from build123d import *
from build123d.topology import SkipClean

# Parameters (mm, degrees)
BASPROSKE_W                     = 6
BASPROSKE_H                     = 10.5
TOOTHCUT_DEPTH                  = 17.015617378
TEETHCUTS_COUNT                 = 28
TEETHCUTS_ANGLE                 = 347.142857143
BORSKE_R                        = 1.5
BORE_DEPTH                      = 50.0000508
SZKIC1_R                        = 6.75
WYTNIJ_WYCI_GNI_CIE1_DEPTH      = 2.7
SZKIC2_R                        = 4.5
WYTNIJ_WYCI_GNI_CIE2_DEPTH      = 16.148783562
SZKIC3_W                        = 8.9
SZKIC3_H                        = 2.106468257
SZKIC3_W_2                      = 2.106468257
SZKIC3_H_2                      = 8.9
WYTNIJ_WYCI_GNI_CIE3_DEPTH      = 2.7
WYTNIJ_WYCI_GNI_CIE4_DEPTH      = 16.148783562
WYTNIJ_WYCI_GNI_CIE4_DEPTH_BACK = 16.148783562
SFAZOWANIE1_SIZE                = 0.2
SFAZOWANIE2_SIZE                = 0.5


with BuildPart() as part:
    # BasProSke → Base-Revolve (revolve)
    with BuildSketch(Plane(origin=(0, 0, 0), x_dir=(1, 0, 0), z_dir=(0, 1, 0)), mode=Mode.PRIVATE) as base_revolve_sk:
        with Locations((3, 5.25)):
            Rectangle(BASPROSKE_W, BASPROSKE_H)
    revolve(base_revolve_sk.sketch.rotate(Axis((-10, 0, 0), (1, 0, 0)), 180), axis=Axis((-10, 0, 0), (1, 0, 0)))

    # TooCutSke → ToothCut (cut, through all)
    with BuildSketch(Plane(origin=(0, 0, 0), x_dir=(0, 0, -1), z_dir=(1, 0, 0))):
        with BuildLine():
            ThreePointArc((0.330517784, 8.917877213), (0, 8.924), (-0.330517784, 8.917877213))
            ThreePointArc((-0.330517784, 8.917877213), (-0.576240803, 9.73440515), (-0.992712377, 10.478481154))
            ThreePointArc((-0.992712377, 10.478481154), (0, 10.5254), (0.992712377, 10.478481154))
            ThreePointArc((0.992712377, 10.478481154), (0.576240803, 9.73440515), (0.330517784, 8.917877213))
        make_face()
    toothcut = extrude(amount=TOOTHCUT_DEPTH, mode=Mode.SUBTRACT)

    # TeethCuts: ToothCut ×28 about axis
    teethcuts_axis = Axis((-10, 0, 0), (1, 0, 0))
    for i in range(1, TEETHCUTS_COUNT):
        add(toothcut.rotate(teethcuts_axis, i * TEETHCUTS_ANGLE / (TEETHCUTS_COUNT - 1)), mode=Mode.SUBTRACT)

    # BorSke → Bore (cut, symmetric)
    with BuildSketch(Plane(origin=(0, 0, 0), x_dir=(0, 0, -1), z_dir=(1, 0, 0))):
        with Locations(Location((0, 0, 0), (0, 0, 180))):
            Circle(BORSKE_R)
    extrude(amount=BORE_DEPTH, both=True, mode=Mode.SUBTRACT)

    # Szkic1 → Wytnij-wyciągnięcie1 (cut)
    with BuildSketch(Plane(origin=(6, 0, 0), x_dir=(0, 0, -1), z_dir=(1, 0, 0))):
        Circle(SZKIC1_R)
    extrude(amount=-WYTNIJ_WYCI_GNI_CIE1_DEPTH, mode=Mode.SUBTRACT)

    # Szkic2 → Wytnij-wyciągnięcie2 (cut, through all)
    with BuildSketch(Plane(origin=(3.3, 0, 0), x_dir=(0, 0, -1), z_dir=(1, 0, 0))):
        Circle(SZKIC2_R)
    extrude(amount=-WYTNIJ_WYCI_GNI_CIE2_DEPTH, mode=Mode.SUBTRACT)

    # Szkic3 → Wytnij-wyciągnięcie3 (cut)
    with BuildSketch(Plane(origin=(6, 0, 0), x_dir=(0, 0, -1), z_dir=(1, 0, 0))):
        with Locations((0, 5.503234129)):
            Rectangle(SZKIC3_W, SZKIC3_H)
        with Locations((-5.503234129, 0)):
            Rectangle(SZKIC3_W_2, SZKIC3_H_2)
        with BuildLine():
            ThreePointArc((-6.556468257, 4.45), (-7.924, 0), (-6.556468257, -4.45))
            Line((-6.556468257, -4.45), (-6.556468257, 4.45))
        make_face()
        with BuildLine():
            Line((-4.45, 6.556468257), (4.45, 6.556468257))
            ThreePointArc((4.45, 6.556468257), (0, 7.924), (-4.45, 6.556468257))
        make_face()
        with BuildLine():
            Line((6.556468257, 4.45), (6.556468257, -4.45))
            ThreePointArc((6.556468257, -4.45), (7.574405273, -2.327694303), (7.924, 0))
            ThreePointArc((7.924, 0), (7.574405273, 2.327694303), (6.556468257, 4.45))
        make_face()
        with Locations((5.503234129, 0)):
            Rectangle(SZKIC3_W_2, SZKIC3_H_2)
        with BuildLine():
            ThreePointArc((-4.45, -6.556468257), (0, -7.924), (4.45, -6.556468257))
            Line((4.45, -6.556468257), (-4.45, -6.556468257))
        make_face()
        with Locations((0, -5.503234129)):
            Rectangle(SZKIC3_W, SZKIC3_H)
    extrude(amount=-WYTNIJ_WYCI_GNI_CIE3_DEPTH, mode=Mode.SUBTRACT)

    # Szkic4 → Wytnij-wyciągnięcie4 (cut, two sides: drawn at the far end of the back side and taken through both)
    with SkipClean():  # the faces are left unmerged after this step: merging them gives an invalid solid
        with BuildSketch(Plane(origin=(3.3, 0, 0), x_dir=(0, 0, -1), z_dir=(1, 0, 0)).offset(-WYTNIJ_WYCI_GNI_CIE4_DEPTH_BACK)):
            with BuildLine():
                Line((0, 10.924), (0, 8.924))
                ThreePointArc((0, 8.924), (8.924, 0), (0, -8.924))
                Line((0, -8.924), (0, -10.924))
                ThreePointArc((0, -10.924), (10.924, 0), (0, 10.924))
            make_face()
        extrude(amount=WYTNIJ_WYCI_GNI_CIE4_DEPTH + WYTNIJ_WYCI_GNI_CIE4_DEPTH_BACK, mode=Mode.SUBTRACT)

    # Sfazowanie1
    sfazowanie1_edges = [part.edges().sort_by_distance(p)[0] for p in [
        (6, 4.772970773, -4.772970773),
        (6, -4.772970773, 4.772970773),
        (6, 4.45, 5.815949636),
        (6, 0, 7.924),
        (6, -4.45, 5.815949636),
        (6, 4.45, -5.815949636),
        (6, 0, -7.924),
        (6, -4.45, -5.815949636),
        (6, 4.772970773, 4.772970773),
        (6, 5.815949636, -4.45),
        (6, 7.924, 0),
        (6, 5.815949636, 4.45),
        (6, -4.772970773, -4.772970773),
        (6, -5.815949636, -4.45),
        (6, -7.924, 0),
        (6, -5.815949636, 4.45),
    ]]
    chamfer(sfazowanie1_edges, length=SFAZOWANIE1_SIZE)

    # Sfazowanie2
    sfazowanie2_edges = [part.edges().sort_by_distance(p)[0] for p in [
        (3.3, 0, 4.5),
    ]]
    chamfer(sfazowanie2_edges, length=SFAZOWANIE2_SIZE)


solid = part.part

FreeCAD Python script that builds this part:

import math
import FreeCAD as App
import Part
import Sketcher


def edges_at(feature, points):
    """Names of the edges that pass closest to the given points."""
    edges = feature.Shape.Edges
    near = lambda p: min(range(len(edges)), key=lambda i: edges[i].distToShape(Part.Vertex(*p))[0])
    return sorted({f"Edge{near(p) + 1}" for p in points})

doc = App.newDocument("Part")
params = doc.addObject("Spreadsheet::Sheet", "Params")
for row, (alias, value) in enumerate([
    ("sketch1_width", "6 mm"),
    ("sketch1_height", "10.5 mm"),
    ("revolution_angle", "360 deg"),
    ("sketch2_radius", "3.92 mm"),
    ("sketch3_diameter", "3 mm"),
    ("pocket2_length", "100.000102 mm"),
    ("sketch4_diameter", "13.5 mm"),
    ("pocket3_length", "2.7 mm"),
    ("sketch5_diameter", "9 mm"),
    ("sketch6_width", "8.9 mm"),
    ("pocket5_length", "2.7 mm"),
    ("sketch7_width", "2 mm"),
    ("chamfer_size", "0.2 mm"),
    ("chamfer2_size", "0.5 mm"),
], start=1):
    params.set(f"A{row}", alias)
    params.set(f"B{row}", "=" + value)
    params.setAlias(f"B{row}", alias)

body = doc.addObject("PartDesign::Body", "Body")

sketch1 = doc.addObject("Sketcher::SketchObject", "Sketch")
body.addObject(sketch1)
sketch1.AttachmentSupport = (doc.XZ_Plane, [""])
sketch1.MapMode = "FlatFace"
sketch1.addGeometry([
    Part.LineSegment(App.Vector(0, -10.5, 0), App.Vector(0, 0, 0)),
    Part.LineSegment(App.Vector(0, 0, 0), App.Vector(6, 0, 0)),
    Part.LineSegment(App.Vector(6, 0, 0), App.Vector(6, -10.5, 0)),
    Part.LineSegment(App.Vector(6, -10.5, 0), App.Vector(0, -10.5, 0)),
], False)
sketch1.addConstraint([
    Sketcher.Constraint("Coincident", 0, 2, 1, 1),
    Sketcher.Constraint("Coincident", 1, 2, 2, 1),
    Sketcher.Constraint("Coincident", 2, 2, 3, 1),
    Sketcher.Constraint("Coincident", 3, 2, 0, 1),
    Sketcher.Constraint("Vertical", 0),
    Sketcher.Constraint("Horizontal", 1),
    Sketcher.Constraint("Vertical", 2),
    Sketcher.Constraint("Horizontal", 3),
    Sketcher.Constraint("Coincident", 0, 2, -1, 1),
    Sketcher.Constraint("DistanceX", 1, 1, 1, 2, 6.0),
    Sketcher.Constraint("DistanceY", 0, 1, 0, 2, 10.5),
])
sketch1.setExpression("Constraints[9]", "Params.sketch1_width")
sketch1.setExpression("Constraints[10]", "Params.sketch1_height")
revolution = doc.addObject("PartDesign::Revolution", "Revolution")
body.addObject(revolution)
revolution.Profile = sketch1
revolution.ReferenceAxis = (sketch1, ["H_Axis"])
revolution.setExpression("Angle", "Params.revolution_angle")

sketch2 = doc.addObject("Sketcher::SketchObject", "Sketch001")
body.addObject(sketch2)
sketch2.AttachmentSupport = (doc.YZ_Plane, [""])
sketch2.MapMode = "FlatFace"
sketch2.addGeometry([
    Part.ArcOfCircle(Part.Circle(App.Vector(0.000001, 0, 0), App.Vector(0, 0, 1), 8.923999), math.radians(-2.122547), math.radians(2.122547)),
    Part.ArcOfCircle(Part.Circle(App.Vector(8.203214, -4.184821, 0), App.Vector(0, 0, 1), 3.92), math.radians(54.519543), math.radians(79.495544)),
    Part.ArcOfCircle(Part.Circle(App.Vector(0, 0, 0), App.Vector(0, 0, 1), 10.5254), math.radians(-5.411946), math.radians(5.411946)),
    Part.ArcOfCircle(Part.Circle(App.Vector(8.203214, 4.184821, 0), App.Vector(0, 0, 1), 3.92), math.radians(-79.495544), math.radians(-54.519543)),
], False)
sketch2.addConstraint([
    Sketcher.Constraint("Coincident", 0, 1, 1, 2),
    Sketcher.Constraint("Coincident", 1, 1, 2, 1),
    Sketcher.Constraint("Coincident", 2, 2, 3, 2),
    Sketcher.Constraint("Coincident", 3, 1, 0, 2),
    Sketcher.Constraint("Coincident", 0, 3, -1, 1),
    Sketcher.Constraint("Coincident", 2, 3, -1, 1),
    Sketcher.Constraint("Equal", 1, 3),
    Sketcher.Constraint("Symmetric", 1, 3, 3, 3, -1),
    Sketcher.Constraint("Radius", 1, 3.92),
    Sketcher.Constraint("Radius", 0, 8.923999),
    Sketcher.Constraint("Radius", 2, 10.5254),
    Sketcher.Constraint("DistanceY", 1, 3, -1, 1, 4.184821),
    Sketcher.Constraint("DistanceX", -1, 1, 1, 1, 10.478481),
])
sketch2.setExpression("Constraints[8]", "Params.sketch2_radius")
pocket1 = doc.addObject("PartDesign::Pocket", "Pocket")
body.addObject(pocket1)
pocket1.Profile = sketch2
pocket1.Type = "ThroughAll"
pocket1.Reversed = True
doc.recompute()

polarpattern = doc.addObject("PartDesign::PolarPattern", "PolarPattern")
body.addObject(polarpattern)
polarpattern.Originals = [pocket1]
polarpattern.Axis = (doc.X_Axis, [""])
polarpattern.Angle = 360
polarpattern.Occurrences = 28
body.Tip = polarpattern

sketch3 = doc.addObject("Sketcher::SketchObject", "Sketch002")
body.addObject(sketch3)
sketch3.AttachmentSupport = (doc.YZ_Plane, [""])
sketch3.MapMode = "FlatFace"
sketch3.addGeometry(Part.Circle(App.Vector(0, 0, 0), App.Vector(0, 0, 1), 1.5), False)
sketch3.addConstraint([
    Sketcher.Constraint("Coincident", 0, 3, -1, 1),
    Sketcher.Constraint("Diameter", 0, 3.0),
])
sketch3.setExpression("Constraints[1]", "Params.sketch3_diameter")
pocket2 = doc.addObject("PartDesign::Pocket", "Pocket001")
body.addObject(pocket2)
pocket2.Profile = sketch3
pocket2.setExpression("Length", "Params.pocket2_length")
pocket2.Midplane = True

sketch4 = doc.addObject("Sketcher::SketchObject", "Sketch003")
body.addObject(sketch4)
sketch4.AttachmentSupport = (doc.YZ_Plane, [""])
sketch4.MapMode = "FlatFace"
sketch4.AttachmentOffset = App.Placement(App.Vector(0, 0, 6), App.Rotation())
sketch4.addGeometry(Part.Circle(App.Vector(0, 0, 0), App.Vector(0, 0, 1), 6.75), False)
sketch4.addConstraint([
    Sketcher.Constraint("Coincident", 0, 3, -1, 1),
    Sketcher.Constraint("Diameter", 0, 13.5),
])
sketch4.setExpression("Constraints[1]", "Params.sketch4_diameter")
pocket3 = doc.addObject("PartDesign::Pocket", "Pocket002")
body.addObject(pocket3)
pocket3.Profile = sketch4
pocket3.setExpression("Length", "Params.pocket3_length")

sketch5 = doc.addObject("Sketcher::SketchObject", "Sketch004")
body.addObject(sketch5)
sketch5.AttachmentSupport = (doc.YZ_Plane, [""])
sketch5.MapMode = "FlatFace"
sketch5.AttachmentOffset = App.Placement(App.Vector(0, 0, 3.3), App.Rotation())
sketch5.addGeometry(Part.Circle(App.Vector(0, 0, 0), App.Vector(0, 0, 1), 4.5), False)
sketch5.addConstraint([
    Sketcher.Constraint("Coincident", 0, 3, -1, 1),
    Sketcher.Constraint("Diameter", 0, 9.0),
])
sketch5.setExpression("Constraints[1]", "Params.sketch5_diameter")
pocket4 = doc.addObject("PartDesign::Pocket", "Pocket003")
body.addObject(pocket4)
pocket4.Profile = sketch5
pocket4.Type = "ThroughAll"

sketch6 = doc.addObject("Sketcher::SketchObject", "Sketch005")
body.addObject(sketch6)
sketch6.AttachmentSupport = (doc.YZ_Plane, [""])
sketch6.MapMode = "FlatFace"
sketch6.AttachmentOffset = App.Placement(App.Vector(0, 0, 6), App.Rotation())
sketch6.addGeometry([
    Part.LineSegment(App.Vector(6.556468, 4.45, 0), App.Vector(4.45, 4.45, 0)),
    Part.LineSegment(App.Vector(4.45, 4.45, 0), App.Vector(4.45, -4.45, 0)),
    Part.LineSegment(App.Vector(4.45, -4.45, 0), App.Vector(6.556468, -4.45, 0)),
    Part.ArcOfCircle(Part.Circle(App.Vector(0, 0, 0), App.Vector(0, 0, 1), 7.924), math.radians(-34.165486), math.radians(34.165486)),
    Part.LineSegment(App.Vector(-4.45, 6.556468, 0), App.Vector(-4.45, 4.45, 0)),
    Part.LineSegment(App.Vector(-4.45, 4.45, 0), App.Vector(4.45, 4.45, 0)),
    Part.LineSegment(App.Vector(4.45, 4.45, 0), App.Vector(4.45, 6.556468, 0)),
    Part.ArcOfCircle(Part.Circle(App.Vector(0, 0, 0), App.Vector(0, 0, 1), 7.924), math.radians(55.834514), math.radians(124.165486)),
    Part.ArcOfCircle(Part.Circle(App.Vector(0, 0, 0), App.Vector(0, 0, 1), 7.924), math.radians(-124.165486), math.radians(-90)),
    Part.ArcOfCircle(Part.Circle(App.Vector(0, 0, 0), App.Vector(0, 0, 1), 7.924), math.radians(-90), math.radians(-55.834514)),
    Part.LineSegment(App.Vector(4.45, -6.556468, 0), App.Vector(4.45, -4.45, 0)),
    Part.LineSegment(App.Vector(4.45, -4.45, 0), App.Vector(-4.45, -4.45, 0)),
    Part.LineSegment(App.Vector(-4.45, -4.45, 0), App.Vector(-4.45, -6.556468, 0)),
    Part.ArcOfCircle(Part.Circle(App.Vector(0, 0, 0), App.Vector(0, 0, 1), 7.924), math.radians(145.834514), math.radians(214.165486)),
    Part.LineSegment(App.Vector(-6.556468, -4.45, 0), App.Vector(-4.45, -4.45, 0)),
    Part.LineSegment(App.Vector(-4.45, -4.45, 0), App.Vector(-4.45, 4.45, 0)),
    Part.LineSegment(App.Vector(-4.45, 4.45, 0), App.Vector(-6.556468, 4.45, 0)),
], False)
sketch6.addConstraint([
    Sketcher.Constraint("Coincident", 0, 2, 1, 1),
    Sketcher.Constraint("Coincident", 1, 2, 2, 1),
    Sketcher.Constraint("Coincident", 2, 2, 3, 1),
    Sketcher.Constraint("Coincident", 3, 2, 0, 1),
    Sketcher.Constraint("Coincident", 4, 2, 5, 1),
    Sketcher.Constraint("Coincident", 5, 2, 6, 1),
    Sketcher.Constraint("Coincident", 6, 2, 7, 1),
    Sketcher.Constraint("Coincident", 7, 2, 4, 1),
    Sketcher.Constraint("Tangent", 8, 2, 9, 1),
    Sketcher.Constraint("Coincident", 9, 2, 10, 1),
    Sketcher.Constraint("Coincident", 10, 2, 11, 1),
    Sketcher.Constraint("Coincident", 11, 2, 12, 1),
    Sketcher.Constraint("Coincident", 12, 2, 8, 1),
    Sketcher.Constraint("Coincident", 13, 2, 14, 1),
    Sketcher.Constraint("Coincident", 14, 2, 15, 1),
    Sketcher.Constraint("Coincident", 15, 2, 16, 1),
    Sketcher.Constraint("Coincident", 16, 2, 13, 1),
    Sketcher.Constraint("Horizontal", 0),
    Sketcher.Constraint("Vertical", 1),
    Sketcher.Constraint("Horizontal", 2),
    Sketcher.Constraint("Vertical", 4),
    Sketcher.Constraint("Horizontal", 5),
    Sketcher.Constraint("Vertical", 6),
    Sketcher.Constraint("Vertical", 10),
    Sketcher.Constraint("Horizontal", 11),
    Sketcher.Constraint("Vertical", 12),
    Sketcher.Constraint("Horizontal", 14),
    Sketcher.Constraint("Vertical", 15),
    Sketcher.Constraint("Horizontal", 16),
    Sketcher.Constraint("Coincident", 3, 3, -1, 1),
    Sketcher.Constraint("Coincident", 7, 3, -1, 1),
    Sketcher.Constraint("Coincident", 8, 3, -1, 1),
    Sketcher.Constraint("Coincident", 13, 3, -1, 1),
    Sketcher.Constraint("Coincident", 5, 2, 0, 2),
    Sketcher.Constraint("Coincident", 10, 2, 1, 2),
    Sketcher.Constraint("Coincident", 14, 2, 11, 2),
    Sketcher.Constraint("Coincident", 15, 2, 4, 2),
    Sketcher.Constraint("Equal", 3, 7),
    Sketcher.Constraint("Equal", 7, 8),
    Sketcher.Constraint("Equal", 8, 9),
    Sketcher.Constraint("Equal", 9, 13),
    Sketcher.Constraint("Symmetric", 1, 2, 4, 2, -1, 1),
    Sketcher.Constraint("PointOnObject", 8, 2, -2),
    Sketcher.Constraint("Equal", 11, 1),
    Sketcher.Constraint("DistanceX", 5, 1, 5, 2, 8.9),
    Sketcher.Constraint("Radius", 3, 7.924),
])
sketch6.setExpression("Constraints[44]", "Params.sketch6_width")
pocket5 = doc.addObject("PartDesign::Pocket", "Pocket004")
body.addObject(pocket5)
pocket5.Profile = sketch6
pocket5.setExpression("Length", "Params.pocket5_length")

sketch7 = doc.addObject("Sketcher::SketchObject", "Sketch006")
body.addObject(sketch7)
sketch7.AttachmentSupport = (doc.YZ_Plane, [""])
sketch7.MapMode = "FlatFace"
sketch7.AttachmentOffset = App.Placement(App.Vector(0, 0, 3.3), App.Rotation())
sketch7.addGeometry([
    Part.LineSegment(App.Vector(10.924, 0, 0), App.Vector(8.924, 0, 0)),
    Part.ArcOfCircle(Part.Circle(App.Vector(0, 0, 0), App.Vector(0, 0, 1), 8.924), math.radians(180), math.radians(360)),
    Part.LineSegment(App.Vector(-8.924, 0, 0), App.Vector(-10.924, 0, 0)),
    Part.ArcOfCircle(Part.Circle(App.Vector(0, 0, 0), App.Vector(0, 0, 1), 10.924), math.radians(180), math.radians(360)),
], False)
sketch7.addConstraint([
    Sketcher.Constraint("Coincident", 0, 2, 1, 2),
    Sketcher.Constraint("Coincident", 1, 1, 2, 1),
    Sketcher.Constraint("Coincident", 2, 2, 3, 1),
    Sketcher.Constraint("Coincident", 3, 2, 0, 1),
    Sketcher.Constraint("Horizontal", 0),
    Sketcher.Constraint("Horizontal", 2),
    Sketcher.Constraint("Coincident", 1, 3, -1, 1),
    Sketcher.Constraint("Coincident", 3, 3, -1, 1),
    Sketcher.Constraint("PointOnObject", 0, 2, -1),
    Sketcher.Constraint("PointOnObject", 1, 1, -1),
    Sketcher.Constraint("DistanceX", 0, 2, 0, 1, 2.0),
    Sketcher.Constraint("Radius", 1, 8.924),
])
sketch7.setExpression("Constraints[10]", "Params.sketch7_width")
pocket6 = doc.addObject("PartDesign::Pocket", "Pocket005")
body.addObject(pocket6)
pocket6.Profile = sketch7
pocket6.Type = "ThroughAll"
pocket6.Midplane = True
doc.recompute()

chamfer = doc.addObject("PartDesign::Chamfer", "Chamfer")
body.addObject(chamfer)
chamfer.Base = (pocket6, edges_at(pocket6, [
    (6, 4.773, -4.773),
    (6, -4.773, 4.773),
    (6, 4.45, 5.816),
    (6, 0, 7.924),
    (6, -4.45, 5.816),
    (6, 4.45, -5.816),
    (6, 2.328, -7.574),
    (6, -4.45, -5.816),
    (6, 4.773, 4.773),
    (6, 5.816, -4.45),
    (6, 7.924, 0),
    (6, 5.816, 4.45),
    (6, -4.773, -4.773),
    (6, -5.816, -4.45),
    (6, -7.924, 0),
    (6, -5.816, 4.45),
]))
chamfer.setExpression("Size", "Params.chamfer_size")
doc.recompute()

chamfer2 = doc.addObject("PartDesign::Chamfer", "Chamfer001")
body.addObject(chamfer2)
chamfer2.Base = (chamfer, edges_at(chamfer, [(3.3, 0, 4.5)]))
chamfer2.setExpression("Size", "Params.chamfer2_size")

doc.recompute()
